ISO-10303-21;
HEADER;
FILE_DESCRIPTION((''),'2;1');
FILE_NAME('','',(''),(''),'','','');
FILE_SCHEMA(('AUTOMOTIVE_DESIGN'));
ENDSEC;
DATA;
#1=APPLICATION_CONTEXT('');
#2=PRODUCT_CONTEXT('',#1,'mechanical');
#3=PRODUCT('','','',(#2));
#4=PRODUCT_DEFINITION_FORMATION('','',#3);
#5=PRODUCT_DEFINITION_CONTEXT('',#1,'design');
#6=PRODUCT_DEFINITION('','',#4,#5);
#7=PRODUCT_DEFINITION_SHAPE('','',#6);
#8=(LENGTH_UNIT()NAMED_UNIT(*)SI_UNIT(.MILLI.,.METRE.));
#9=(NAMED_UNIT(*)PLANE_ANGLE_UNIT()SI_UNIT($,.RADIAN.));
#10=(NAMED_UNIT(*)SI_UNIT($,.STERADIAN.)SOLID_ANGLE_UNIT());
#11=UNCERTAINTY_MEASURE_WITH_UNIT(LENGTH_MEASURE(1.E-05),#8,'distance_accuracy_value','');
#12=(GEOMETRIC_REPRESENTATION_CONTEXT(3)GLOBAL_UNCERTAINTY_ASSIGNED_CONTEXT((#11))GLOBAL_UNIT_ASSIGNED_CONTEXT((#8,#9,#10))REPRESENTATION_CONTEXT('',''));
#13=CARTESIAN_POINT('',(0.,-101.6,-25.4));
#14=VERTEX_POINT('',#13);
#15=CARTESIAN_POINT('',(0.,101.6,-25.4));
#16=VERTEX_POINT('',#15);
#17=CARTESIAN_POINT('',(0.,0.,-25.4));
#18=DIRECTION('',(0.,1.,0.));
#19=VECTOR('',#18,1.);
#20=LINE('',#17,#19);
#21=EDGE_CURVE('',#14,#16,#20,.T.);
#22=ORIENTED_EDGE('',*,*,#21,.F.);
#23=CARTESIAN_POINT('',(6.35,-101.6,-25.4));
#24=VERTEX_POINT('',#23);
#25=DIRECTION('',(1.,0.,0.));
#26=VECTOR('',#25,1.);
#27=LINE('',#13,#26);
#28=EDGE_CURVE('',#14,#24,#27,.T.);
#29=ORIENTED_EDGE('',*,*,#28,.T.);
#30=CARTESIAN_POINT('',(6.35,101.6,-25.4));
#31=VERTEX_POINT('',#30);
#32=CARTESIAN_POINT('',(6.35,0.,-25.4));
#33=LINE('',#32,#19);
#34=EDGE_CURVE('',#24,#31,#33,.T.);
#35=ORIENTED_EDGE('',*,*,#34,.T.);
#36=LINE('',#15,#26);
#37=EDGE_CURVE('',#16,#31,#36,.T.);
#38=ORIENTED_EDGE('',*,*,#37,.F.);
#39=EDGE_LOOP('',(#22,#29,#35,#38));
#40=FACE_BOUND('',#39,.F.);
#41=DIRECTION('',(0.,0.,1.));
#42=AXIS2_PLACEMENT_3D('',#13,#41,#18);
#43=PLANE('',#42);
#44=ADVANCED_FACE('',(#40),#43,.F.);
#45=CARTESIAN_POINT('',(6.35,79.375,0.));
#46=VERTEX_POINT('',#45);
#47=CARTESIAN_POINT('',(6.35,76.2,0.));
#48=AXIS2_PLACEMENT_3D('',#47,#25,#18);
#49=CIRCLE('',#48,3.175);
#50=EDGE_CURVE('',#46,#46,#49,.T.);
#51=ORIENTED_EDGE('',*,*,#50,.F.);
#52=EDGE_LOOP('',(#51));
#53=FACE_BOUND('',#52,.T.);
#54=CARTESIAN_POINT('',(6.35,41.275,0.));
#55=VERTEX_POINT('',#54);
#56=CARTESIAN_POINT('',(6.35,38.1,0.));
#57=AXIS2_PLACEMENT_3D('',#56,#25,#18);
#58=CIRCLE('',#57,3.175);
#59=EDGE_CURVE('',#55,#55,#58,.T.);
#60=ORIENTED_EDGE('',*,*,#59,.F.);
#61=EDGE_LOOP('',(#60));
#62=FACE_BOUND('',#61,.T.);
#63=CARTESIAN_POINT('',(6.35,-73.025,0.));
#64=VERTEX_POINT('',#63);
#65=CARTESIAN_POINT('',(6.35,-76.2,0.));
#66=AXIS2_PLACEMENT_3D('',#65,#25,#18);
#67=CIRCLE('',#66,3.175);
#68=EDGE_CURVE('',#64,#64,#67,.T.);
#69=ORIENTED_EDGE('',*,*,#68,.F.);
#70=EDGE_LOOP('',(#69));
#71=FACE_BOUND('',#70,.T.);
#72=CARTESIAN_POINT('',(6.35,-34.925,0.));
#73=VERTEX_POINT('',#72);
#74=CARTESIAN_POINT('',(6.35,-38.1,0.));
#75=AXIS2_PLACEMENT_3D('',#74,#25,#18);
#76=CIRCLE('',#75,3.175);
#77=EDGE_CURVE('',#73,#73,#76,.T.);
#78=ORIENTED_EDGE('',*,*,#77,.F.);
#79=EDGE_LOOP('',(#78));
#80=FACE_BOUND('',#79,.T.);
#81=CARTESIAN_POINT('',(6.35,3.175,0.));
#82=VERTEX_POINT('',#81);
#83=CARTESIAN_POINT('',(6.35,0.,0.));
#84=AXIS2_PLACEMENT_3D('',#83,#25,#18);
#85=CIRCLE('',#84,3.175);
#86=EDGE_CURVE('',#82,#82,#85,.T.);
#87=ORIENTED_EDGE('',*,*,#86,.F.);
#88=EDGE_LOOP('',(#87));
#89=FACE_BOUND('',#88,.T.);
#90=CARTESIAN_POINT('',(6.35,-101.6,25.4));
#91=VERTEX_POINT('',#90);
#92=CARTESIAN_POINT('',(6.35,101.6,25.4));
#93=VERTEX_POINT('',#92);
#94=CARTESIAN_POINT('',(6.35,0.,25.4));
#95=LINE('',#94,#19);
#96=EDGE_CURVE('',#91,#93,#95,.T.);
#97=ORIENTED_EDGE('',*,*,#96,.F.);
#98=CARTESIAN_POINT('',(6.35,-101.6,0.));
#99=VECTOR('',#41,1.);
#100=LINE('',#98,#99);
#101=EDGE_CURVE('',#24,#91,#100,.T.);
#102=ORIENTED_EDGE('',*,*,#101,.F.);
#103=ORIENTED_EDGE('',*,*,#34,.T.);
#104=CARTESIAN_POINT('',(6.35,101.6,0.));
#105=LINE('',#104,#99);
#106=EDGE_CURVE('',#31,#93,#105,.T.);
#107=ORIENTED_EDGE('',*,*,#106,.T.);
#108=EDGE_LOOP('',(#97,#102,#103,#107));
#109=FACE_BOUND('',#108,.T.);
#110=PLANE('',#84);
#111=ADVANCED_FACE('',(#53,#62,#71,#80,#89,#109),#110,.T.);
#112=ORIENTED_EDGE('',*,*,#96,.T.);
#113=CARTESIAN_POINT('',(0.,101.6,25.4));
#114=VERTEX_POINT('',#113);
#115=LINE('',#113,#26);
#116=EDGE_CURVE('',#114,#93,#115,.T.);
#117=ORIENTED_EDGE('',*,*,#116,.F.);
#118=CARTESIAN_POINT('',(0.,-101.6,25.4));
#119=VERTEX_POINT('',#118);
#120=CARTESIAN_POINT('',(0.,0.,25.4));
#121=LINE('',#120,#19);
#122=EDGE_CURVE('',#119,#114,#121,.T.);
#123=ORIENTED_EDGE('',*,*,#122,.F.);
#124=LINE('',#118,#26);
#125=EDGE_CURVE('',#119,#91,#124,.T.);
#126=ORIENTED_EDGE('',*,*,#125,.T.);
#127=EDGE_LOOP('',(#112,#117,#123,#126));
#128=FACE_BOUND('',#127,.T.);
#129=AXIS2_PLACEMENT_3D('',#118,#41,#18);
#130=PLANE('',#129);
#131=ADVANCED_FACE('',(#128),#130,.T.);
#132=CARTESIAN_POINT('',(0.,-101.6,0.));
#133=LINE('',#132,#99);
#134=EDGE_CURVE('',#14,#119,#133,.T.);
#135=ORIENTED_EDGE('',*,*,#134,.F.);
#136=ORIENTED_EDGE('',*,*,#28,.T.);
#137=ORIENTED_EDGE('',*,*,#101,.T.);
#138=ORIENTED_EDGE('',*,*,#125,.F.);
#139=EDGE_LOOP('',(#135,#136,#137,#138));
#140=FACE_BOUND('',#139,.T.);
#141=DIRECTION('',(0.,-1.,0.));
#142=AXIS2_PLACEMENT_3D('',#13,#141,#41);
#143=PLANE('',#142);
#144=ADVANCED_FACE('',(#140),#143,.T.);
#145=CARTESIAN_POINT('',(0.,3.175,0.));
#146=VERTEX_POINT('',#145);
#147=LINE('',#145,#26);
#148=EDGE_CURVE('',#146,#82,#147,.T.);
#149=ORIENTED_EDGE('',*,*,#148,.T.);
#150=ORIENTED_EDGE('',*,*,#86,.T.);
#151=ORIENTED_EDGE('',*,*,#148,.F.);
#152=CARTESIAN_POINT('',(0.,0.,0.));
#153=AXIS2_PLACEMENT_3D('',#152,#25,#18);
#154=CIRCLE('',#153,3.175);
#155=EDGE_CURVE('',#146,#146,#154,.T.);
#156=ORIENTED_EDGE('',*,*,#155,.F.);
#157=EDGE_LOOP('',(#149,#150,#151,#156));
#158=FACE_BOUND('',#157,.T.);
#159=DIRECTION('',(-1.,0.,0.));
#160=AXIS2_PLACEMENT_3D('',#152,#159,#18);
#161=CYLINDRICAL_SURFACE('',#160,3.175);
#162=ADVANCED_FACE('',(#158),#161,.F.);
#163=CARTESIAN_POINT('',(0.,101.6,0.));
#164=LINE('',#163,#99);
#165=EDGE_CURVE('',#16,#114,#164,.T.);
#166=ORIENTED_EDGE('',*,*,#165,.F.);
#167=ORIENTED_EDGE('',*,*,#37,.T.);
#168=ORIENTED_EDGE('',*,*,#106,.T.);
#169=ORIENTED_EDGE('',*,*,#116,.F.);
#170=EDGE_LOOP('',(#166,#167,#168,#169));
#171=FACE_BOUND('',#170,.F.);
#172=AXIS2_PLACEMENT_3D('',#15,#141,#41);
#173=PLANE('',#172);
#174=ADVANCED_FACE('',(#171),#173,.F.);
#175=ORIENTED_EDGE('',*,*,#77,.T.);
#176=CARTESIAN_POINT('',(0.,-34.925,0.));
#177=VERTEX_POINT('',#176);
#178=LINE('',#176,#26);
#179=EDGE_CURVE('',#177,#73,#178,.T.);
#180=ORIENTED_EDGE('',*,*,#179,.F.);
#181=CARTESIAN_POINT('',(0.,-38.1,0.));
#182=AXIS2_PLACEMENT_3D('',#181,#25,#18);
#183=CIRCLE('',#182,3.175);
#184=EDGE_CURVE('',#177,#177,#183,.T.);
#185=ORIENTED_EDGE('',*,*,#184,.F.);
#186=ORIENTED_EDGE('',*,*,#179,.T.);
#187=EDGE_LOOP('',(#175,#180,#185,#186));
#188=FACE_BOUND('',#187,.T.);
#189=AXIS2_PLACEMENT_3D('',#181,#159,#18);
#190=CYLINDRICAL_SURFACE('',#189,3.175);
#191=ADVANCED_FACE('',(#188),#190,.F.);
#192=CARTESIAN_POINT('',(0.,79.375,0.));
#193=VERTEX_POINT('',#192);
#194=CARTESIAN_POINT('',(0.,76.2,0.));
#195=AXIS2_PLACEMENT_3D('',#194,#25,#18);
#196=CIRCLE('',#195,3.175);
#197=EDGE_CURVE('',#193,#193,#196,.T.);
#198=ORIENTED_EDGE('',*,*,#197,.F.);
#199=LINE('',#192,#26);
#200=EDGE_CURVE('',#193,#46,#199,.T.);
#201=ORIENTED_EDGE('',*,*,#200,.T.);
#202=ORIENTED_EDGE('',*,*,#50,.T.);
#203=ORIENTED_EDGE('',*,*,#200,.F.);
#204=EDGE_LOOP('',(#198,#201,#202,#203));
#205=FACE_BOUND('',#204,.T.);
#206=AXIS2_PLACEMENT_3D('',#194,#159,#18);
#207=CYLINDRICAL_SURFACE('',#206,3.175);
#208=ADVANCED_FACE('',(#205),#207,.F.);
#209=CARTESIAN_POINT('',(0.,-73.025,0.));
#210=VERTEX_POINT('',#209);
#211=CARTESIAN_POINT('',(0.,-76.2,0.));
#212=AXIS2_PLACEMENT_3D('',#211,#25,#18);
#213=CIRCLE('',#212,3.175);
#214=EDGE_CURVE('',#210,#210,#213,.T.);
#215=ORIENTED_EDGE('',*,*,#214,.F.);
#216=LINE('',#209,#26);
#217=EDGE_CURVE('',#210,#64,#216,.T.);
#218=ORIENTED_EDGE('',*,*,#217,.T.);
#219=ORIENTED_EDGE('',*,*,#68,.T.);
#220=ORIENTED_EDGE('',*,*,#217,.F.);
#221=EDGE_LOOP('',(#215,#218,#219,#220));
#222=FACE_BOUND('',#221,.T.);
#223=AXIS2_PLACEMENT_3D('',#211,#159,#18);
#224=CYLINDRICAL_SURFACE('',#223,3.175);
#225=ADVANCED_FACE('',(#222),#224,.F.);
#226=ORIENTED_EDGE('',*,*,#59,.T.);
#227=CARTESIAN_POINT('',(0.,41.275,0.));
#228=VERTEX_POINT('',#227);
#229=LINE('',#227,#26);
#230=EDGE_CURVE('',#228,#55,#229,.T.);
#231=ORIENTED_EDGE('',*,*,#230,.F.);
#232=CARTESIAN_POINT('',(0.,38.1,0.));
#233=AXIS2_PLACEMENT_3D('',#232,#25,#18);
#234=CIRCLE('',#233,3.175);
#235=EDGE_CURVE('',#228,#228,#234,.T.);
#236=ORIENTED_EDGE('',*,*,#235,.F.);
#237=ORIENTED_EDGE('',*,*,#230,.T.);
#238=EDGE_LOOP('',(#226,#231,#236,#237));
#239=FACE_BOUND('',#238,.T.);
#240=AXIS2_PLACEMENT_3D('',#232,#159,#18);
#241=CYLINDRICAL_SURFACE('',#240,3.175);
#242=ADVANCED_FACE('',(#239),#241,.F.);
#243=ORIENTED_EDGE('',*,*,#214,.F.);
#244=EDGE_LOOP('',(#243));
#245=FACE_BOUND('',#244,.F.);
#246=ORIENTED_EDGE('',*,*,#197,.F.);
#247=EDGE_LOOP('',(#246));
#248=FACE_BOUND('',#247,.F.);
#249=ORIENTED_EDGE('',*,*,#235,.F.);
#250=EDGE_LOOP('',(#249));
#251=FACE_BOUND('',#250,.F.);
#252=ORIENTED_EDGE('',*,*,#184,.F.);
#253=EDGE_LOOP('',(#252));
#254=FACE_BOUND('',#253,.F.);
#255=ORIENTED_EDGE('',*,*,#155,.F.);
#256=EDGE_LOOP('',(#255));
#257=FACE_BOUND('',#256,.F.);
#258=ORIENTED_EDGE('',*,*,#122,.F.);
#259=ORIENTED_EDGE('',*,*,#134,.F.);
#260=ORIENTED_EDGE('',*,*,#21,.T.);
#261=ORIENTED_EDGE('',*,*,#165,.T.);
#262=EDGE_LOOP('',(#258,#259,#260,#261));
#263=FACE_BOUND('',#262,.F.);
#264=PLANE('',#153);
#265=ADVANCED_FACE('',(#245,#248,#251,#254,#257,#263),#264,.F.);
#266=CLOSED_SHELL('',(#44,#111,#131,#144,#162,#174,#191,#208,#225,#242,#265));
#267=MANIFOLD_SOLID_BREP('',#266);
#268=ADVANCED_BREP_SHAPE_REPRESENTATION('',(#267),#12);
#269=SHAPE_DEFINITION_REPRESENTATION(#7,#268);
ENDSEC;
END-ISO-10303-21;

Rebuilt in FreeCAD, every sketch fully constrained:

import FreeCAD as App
import Part
import Sketcher
from FreeCAD import Vector
Q = App.Units.Quantity


def add_polygon(sketch, points):
    """Adds a closed chain of lines whose ends are joined by coincident constraints."""
    first, n = sketch.GeometryCount, len(points)
    for a, b in zip(points, points[1:] + points[:1]):
        sketch.addGeometry(Part.LineSegment(App.Vector(*a, 0), App.Vector(*b, 0)), False)
    for i in range(n):
        sketch.addConstraint(Sketcher.Constraint("Coincident", first + i, 2, first + (i + 1) % n, 1))

doc = App.newDocument("Part")
body = doc.addObject("PartDesign::Body", "Body")

# Sketch on YZ plane
sketch1 = doc.addObject("Sketcher::SketchObject", "Sketch")
body.addObject(sketch1)
sketch1.AttachmentSupport = (doc.YZ_Plane, [""])
sketch1.MapMode = "FlatFace"
add_polygon(sketch1, [(-101.6, 25.4), (-101.6, -25.4), (101.6, -25.4), (101.6, 25.4)])  # lines 0-3
sketch1.addGeometry(Part.Circle(Vector(-76.2, 0, 0), Vector(0, 0, 1), 3.2), False)  # 4
sketch1.addGeometry(Part.Circle(Vector(-38.1, 0, 0), Vector(0, 0, 1), 3.2), False)  # 5
sketch1.addGeometry(Part.Circle(Vector(0, 0, 0), Vector(0, 0, 1), 3.2), False)  # 6
sketch1.addGeometry(Part.Circle(Vector(38.1, 0, 0), Vector(0, 0, 1), 3.2), False)  # 7
sketch1.addGeometry(Part.Circle(Vector(76.2, 0, 0), Vector(0, 0, 1), 3.2), False)  # 8
sketch1.addConstraint([
    Sketcher.Constraint("Vertical", 0),
    Sketcher.Constraint("Horizontal", 1),
    Sketcher.Constraint("Vertical", 2),
    Sketcher.Constraint("Horizontal", 3),
    Sketcher.Constraint("Coincident", 6, 3, -1, 1),
    Sketcher.Constraint("Equal", 4, 5),
    Sketcher.Constraint("Equal", 5, 6),
    Sketcher.Constraint("Equal", 6, 7),
    Sketcher.Constraint("Equal", 7, 8),
    Sketcher.Constraint("Symmetric", 5, 3, 7, 3, -1, 1),
    Sketcher.Constraint("Symmetric", 4, 3, 8, 3, -1, 1),
    Sketcher.Constraint("Symmetric", 0, 2, 2, 2, -1, 1),
    Sketcher.Constraint("PointOnObject", 4, 3, -1),
    Sketcher.Constraint("PointOnObject", 5, 3, -1),
    Sketcher.Constraint("Diameter", 4, Q("0.25 in")),
    Sketcher.Constraint("DistanceX", 1, 1, 1, 2, Q("8 in")),
    Sketcher.Constraint("DistanceY", 0, 2, 0, 1, Q("2 in")),
    Sketcher.Constraint("DistanceX", 4, 3, -1, 1, Q("3 in")),
    Sketcher.Constraint("DistanceX", 5, 3, 7, 3, Q("3 in")),
])
pad1 = doc.addObject("PartDesign::Pad", "Pad")
body.addObject(pad1)
pad1.Profile = sketch1
pad1.Length = Q("0.25 in")

doc.recompute()
